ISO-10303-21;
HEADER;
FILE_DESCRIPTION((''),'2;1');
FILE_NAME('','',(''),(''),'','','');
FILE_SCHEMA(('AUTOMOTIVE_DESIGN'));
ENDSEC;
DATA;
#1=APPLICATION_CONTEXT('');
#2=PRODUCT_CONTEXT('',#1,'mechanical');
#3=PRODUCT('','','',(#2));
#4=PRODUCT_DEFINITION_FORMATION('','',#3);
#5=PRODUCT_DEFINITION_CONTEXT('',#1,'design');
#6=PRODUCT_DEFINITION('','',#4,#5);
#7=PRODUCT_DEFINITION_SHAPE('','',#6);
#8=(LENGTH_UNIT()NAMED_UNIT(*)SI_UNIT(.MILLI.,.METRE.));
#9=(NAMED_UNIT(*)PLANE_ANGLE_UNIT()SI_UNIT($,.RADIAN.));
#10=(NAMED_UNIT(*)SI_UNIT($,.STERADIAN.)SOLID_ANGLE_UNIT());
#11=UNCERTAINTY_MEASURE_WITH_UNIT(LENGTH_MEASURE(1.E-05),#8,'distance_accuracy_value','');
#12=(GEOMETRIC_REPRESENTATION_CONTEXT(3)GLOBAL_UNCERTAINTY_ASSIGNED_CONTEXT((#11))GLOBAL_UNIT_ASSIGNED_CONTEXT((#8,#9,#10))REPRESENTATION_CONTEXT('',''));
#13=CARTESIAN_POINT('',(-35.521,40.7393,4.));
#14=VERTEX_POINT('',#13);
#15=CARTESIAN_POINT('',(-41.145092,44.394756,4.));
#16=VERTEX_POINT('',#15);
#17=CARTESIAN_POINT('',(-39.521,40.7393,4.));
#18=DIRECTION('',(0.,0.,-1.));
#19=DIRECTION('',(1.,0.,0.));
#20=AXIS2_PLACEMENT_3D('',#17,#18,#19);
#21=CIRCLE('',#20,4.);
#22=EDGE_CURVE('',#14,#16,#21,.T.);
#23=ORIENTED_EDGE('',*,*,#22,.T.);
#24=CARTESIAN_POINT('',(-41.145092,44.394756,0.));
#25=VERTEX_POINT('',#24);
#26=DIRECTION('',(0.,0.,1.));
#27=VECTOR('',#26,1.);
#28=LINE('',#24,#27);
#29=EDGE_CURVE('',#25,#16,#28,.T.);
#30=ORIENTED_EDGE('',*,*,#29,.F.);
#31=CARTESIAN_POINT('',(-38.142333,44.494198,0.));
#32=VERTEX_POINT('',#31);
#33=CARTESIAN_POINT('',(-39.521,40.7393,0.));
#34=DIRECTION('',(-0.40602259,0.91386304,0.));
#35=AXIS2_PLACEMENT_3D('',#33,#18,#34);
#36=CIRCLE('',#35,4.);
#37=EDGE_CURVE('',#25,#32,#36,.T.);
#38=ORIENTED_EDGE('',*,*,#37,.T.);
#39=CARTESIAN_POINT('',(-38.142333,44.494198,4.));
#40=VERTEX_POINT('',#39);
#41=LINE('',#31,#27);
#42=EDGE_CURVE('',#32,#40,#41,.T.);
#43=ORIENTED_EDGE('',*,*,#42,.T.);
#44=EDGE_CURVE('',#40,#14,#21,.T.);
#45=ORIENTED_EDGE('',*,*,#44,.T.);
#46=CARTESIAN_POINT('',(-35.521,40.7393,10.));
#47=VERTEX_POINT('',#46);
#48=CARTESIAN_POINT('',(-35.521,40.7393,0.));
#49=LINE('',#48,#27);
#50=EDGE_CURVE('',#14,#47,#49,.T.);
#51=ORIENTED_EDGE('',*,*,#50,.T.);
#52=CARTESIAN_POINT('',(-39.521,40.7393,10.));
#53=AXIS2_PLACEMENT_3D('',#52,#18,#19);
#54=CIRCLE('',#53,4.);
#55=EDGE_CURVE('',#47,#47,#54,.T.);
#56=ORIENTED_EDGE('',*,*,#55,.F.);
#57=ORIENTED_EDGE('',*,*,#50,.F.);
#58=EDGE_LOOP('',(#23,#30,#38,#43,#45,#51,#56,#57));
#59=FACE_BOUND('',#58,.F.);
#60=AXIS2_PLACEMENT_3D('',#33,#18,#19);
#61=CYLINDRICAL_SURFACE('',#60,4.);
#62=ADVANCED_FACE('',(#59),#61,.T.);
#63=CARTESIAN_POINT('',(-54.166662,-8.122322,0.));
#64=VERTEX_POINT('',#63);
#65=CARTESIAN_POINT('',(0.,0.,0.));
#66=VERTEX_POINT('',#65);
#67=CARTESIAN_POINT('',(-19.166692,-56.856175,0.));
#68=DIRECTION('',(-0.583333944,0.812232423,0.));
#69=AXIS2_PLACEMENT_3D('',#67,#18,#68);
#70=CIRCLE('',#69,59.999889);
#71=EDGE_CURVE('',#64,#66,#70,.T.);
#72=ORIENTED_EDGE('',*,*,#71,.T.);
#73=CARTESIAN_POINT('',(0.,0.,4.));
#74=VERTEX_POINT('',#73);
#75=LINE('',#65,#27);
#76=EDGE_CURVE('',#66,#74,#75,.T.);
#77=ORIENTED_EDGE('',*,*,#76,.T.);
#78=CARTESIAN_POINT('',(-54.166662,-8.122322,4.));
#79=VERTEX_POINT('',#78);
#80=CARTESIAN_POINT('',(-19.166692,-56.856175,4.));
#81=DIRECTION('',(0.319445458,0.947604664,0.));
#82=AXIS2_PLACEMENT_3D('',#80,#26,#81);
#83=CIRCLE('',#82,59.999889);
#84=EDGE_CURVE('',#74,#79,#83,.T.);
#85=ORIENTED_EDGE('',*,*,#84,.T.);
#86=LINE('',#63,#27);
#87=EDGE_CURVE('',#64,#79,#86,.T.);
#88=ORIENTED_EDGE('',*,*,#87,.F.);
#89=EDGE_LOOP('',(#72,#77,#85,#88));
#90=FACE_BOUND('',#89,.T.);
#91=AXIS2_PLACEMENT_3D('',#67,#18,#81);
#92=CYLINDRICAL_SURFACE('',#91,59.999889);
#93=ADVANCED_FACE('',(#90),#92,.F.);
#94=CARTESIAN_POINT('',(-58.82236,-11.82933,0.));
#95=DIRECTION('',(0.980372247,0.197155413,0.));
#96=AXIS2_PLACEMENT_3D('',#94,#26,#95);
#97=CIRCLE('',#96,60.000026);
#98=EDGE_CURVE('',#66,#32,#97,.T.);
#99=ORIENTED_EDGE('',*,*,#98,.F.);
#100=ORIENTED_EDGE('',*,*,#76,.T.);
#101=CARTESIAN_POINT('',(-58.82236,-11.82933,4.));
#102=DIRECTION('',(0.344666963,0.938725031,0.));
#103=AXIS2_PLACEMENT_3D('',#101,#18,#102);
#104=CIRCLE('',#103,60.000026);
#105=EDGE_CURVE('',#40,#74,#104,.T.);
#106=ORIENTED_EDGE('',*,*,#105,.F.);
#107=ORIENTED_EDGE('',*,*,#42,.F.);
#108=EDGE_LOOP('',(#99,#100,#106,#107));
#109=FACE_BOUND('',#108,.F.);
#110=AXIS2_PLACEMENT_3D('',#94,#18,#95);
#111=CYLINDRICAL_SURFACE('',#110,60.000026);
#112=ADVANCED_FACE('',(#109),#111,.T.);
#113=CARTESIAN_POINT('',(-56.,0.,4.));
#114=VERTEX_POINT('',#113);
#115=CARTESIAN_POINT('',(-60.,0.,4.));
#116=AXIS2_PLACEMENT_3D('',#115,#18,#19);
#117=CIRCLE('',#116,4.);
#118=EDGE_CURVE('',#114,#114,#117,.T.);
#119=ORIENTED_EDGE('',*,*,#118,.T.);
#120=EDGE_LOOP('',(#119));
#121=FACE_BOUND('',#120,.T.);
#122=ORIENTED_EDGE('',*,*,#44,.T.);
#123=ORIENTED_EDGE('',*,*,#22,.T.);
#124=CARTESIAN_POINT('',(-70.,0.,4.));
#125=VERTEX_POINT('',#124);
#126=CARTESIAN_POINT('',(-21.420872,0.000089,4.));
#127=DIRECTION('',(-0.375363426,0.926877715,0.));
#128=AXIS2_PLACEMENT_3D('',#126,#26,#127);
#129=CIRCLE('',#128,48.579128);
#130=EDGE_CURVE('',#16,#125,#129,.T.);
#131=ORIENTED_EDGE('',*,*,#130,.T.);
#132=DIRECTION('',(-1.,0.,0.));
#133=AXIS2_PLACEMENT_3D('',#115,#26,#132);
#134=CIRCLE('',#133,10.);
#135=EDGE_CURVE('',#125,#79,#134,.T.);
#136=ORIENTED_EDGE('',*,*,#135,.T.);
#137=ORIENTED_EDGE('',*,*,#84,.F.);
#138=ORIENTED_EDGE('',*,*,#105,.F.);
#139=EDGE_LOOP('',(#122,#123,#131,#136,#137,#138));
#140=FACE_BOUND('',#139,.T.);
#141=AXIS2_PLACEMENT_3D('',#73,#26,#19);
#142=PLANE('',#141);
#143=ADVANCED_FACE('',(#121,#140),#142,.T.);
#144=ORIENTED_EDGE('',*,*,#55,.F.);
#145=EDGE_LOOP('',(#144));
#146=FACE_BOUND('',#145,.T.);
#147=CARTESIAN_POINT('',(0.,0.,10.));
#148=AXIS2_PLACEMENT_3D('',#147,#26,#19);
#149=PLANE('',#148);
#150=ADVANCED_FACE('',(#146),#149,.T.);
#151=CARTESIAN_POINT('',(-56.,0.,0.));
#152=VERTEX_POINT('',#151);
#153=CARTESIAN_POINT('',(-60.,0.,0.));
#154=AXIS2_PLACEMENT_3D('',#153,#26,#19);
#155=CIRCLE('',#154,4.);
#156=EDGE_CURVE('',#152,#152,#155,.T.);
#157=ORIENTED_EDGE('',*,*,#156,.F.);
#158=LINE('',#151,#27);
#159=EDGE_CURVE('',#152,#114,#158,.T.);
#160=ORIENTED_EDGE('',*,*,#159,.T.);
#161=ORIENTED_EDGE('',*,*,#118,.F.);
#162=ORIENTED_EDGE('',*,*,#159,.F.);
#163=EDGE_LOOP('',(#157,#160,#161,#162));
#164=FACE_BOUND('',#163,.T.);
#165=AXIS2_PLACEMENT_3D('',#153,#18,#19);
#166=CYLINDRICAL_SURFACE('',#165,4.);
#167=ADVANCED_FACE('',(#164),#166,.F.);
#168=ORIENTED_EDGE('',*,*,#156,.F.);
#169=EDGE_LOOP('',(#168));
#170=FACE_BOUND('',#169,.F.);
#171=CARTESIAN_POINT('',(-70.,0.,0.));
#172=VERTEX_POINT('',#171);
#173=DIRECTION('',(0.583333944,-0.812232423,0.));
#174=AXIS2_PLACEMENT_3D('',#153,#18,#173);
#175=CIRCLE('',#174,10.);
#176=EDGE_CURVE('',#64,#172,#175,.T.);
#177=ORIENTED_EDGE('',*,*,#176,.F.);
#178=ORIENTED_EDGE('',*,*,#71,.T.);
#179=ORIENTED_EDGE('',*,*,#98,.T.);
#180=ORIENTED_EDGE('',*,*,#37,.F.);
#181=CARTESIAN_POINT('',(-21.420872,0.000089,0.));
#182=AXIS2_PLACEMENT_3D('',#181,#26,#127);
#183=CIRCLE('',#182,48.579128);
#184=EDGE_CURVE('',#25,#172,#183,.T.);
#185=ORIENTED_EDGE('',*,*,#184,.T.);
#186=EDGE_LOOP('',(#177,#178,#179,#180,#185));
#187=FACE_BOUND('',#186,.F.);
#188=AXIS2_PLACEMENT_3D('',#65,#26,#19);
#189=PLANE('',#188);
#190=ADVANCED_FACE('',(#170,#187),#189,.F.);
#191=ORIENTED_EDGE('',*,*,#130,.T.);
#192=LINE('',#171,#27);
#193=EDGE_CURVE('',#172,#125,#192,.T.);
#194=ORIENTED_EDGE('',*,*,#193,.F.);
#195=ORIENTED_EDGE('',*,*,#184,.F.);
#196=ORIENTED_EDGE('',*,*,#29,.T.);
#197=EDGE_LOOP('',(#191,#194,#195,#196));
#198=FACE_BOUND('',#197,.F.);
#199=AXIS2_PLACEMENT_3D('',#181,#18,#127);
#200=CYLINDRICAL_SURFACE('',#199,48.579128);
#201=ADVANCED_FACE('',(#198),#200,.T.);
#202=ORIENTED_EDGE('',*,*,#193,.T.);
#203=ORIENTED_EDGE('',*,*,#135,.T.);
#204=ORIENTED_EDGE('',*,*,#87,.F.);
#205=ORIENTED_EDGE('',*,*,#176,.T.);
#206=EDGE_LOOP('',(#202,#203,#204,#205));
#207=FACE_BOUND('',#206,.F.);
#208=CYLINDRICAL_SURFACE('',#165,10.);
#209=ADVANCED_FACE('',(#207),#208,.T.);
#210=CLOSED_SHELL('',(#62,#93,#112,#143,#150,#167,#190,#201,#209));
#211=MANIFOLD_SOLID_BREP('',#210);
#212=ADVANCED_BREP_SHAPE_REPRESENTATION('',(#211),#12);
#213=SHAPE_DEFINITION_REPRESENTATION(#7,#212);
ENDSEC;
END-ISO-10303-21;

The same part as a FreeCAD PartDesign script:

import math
import FreeCAD as App
import Part
import Sketcher

doc = App.newDocument("Part")
body = doc.addObject("PartDesign::Body", "Body")

# Sketch on XY plane
sketch1 = body.newObject("Sketcher::SketchObject", "Sketch")
sketch1.AttachmentSupport = (doc.getObject("XY_Plane"), [""])
sketch1.MapMode = "FlatFace"
sketch1.addGeometry([
    Part.ArcOfCircle(Part.Circle(App.Vector(-58.8223, -11.8293, 0), App.Vector(0, 0, 1), 59.999961), math.radians(11.370648), math.radians(69.838577)),  # 0
    Part.ArcOfCircle(Part.Circle(App.Vector(-39.521, 40.7393, 0), App.Vector(0, 0, 1), 4), math.radians(69.838533), math.radians(113.955224)),  # 1
    Part.ArcOfCircle(Part.Circle(App.Vector(-21.4208, 0, 0), App.Vector(0, 0, 1), 48.579237), math.radians(113.955256), math.radians(180)),  # 2
    Part.ArcOfCircle(Part.Circle(App.Vector(-60, 0, 0), App.Vector(0, 0, 1), 10), math.radians(180), math.radians(305.685378)),  # 3
    Part.ArcOfCircle(Part.Circle(App.Vector(-19.1667, -56.8563, 0), App.Vector(0, 0, 1), 60.00001), math.radians(71.370639), math.radians(125.685302)),  # 4
    Part.Circle(App.Vector(-60, 0, 0), App.Vector(0, 0, 1), 4),  # 5
], False)
sketch1.addConstraint([
    Sketcher.Constraint("Tangent", 0, 2, 1, 1),
    Sketcher.Constraint("Tangent", 1, 2, 2, 1),
    Sketcher.Constraint("Tangent", 2, 2, 3, 1),
    Sketcher.Constraint("Tangent", 3, 2, 4, 2),
    Sketcher.Constraint("Coincident", 4, 1, 0, 1),
    Sketcher.Constraint("Coincident", 4, 1, -1, 1),
    Sketcher.Constraint("Coincident", 5, 3, 3, 3),
    Sketcher.Constraint("Equal", 0, 4),
    Sketcher.Constraint("Equal", 1, 5),
    Sketcher.Constraint("PointOnObject", 2, 3, -1),
    Sketcher.Constraint("PointOnObject", 3, 3, -1),
    Sketcher.Constraint("Diameter", 5, 8.0),
    Sketcher.Constraint("Radius", 0, 60.0),
    Sketcher.Constraint("Radius", 3, 10.0),
    Sketcher.Constraint("DistanceX", 3, 3, -1, 1, 60.0),
    Sketcher.Constraint("Radius", 2, 48.5792),
    Sketcher.Constraint("DistanceX", 0, 3, 0, 2, 20.68),
])
pad1 = body.newObject("PartDesign::Pad", "Pad")
pad1.Profile = sketch1
pad1.Length = 4

# Sketch on XY plane
sketch2 = body.newObject("Sketcher::SketchObject", "Sketch001")
sketch2.AttachmentSupport = (doc.getObject("XY_Plane"), [""])
sketch2.MapMode = "FlatFace"
sketch2.addGeometry(Part.Circle(App.Vector(-39.521, 40.7393, 0), App.Vector(0, 0, 1), 4), False)
sketch2.addConstraint([
    Sketcher.Constraint("Diameter", 0, 8.0),
    Sketcher.Constraint("DistanceX", 0, 3, -1, 1, 39.521),
    Sketcher.Constraint("DistanceY", -1, 1, 0, 3, 40.7393),
])
pad2 = body.newObject("PartDesign::Pad", "Pad001")
pad2.Profile = sketch2
pad2.Length = 10

doc.recompute()
